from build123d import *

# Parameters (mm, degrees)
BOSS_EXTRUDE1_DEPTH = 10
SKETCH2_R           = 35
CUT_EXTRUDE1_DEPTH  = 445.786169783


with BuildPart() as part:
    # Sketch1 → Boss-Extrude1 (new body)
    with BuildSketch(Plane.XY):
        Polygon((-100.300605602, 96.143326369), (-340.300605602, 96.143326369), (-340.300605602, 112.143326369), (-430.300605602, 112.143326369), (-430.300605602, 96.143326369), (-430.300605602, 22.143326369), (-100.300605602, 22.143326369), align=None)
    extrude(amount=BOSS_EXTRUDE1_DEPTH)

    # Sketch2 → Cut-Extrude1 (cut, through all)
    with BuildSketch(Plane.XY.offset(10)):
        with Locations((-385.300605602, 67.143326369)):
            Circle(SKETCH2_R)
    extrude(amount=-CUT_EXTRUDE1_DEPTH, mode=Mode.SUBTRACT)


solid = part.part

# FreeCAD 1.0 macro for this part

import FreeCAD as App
import Part
import Sketcher

V = App.Vector

doc = App.newDocument("Part")
body = doc.addObject("PartDesign::Body", "Body")

sketch1 = body.newObject("Sketcher::SketchObject", "Sketch")
sketch1.AttachmentSupport = (doc.getObject("XY_Plane"), [""])
sketch1.MapMode = "FlatFace"
sketch1.addGeometry([
    Part.LineSegment(V(-100, 96, 0), V(-340, 96, 0)),
    Part.LineSegment(V(-340, 96, 0), V(-340, 112, 0)),
    Part.LineSegment(V(-340, 112, 0), V(-430, 112, 0)),
    Part.LineSegment(V(-430, 112, 0), V(-430, 22, 0)),
    Part.LineSegment(V(-430, 22, 0), V(-100, 22, 0)),
    Part.LineSegment(V(-100, 22, 0), V(-100, 96, 0)),
], False)
sketch1.addConstraint([
    Sketcher.Constraint("Coincident", 0, 2, 1, 1),
    Sketcher.Constraint("Coincident", 1, 2, 2, 1),
    Sketcher.Constraint("Coincident", 2, 2, 3, 1),
    Sketcher.Constraint("Coincident", 3, 2, 4, 1),
    Sketcher.Constraint("Coincident", 4, 2, 5, 1),
    Sketcher.Constraint("Coincident", 5, 2, 0, 1),
    Sketcher.Constraint("Horizontal", 0),
    Sketcher.Constraint("Vertical", 1),
    Sketcher.Constraint("Horizontal", 2),
    Sketcher.Constraint("Vertical", 3),
    Sketcher.Constraint("Horizontal", 4),
    Sketcher.Constraint("Vertical", 5),
    Sketcher.Constraint("Equal", 2, 3),
    Sketcher.Constraint("DistanceX", 0, 2, 0, 1, 240.0),
    Sketcher.Constraint("DistanceX", 2, 2, 2, 1, 90.0),
    Sketcher.Constraint("DistanceY", 1, 1, 1, 2, 16.0),
    Sketcher.Constraint("DistanceX", 0, 2, -1, 1, 340.300606),
    Sketcher.Constraint("DistanceY", -1, 1, 0, 2, 96.143326),
])
pad1 = body.newObject("PartDesign::Pad", "Pad")
pad1.Profile = sketch1
pad1.Length = 10

sketch2 = body.newObject("Sketcher::SketchObject", "Sketch001")
sketch2.AttachmentSupport = (doc.getObject("XY_Plane"), [""])
sketch2.MapMode = "FlatFace"
sketch2.AttachmentOffset = App.Placement(V(0, 0, 10), App.Rotation())
sketch2.addGeometry(Part.Circle(V(-385, 67, 0), V(0, 0, 1), 35), False)
sketch2.addConstraint([
    Sketcher.Constraint("Diameter", 0, 70.0),
    Sketcher.Constraint("DistanceX", 0, 3, -1, 1, 385.300606),
    Sketcher.Constraint("DistanceY", -1, 1, 0, 3, 67.143326),
])
pocket1 = body.newObject("PartDesign::Pocket", "Pocket")
pocket1.Profile = sketch2
pocket1.Type = "ThroughAll"

doc.recompute()
